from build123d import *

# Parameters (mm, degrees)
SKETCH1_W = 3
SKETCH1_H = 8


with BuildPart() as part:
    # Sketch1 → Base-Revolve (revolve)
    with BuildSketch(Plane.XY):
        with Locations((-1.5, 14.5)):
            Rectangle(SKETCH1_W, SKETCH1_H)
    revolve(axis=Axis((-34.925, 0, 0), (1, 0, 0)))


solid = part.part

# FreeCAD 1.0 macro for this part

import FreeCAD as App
import Part
import Sketcher

doc = App.newDocument("Part")
body = doc.addObject("PartDesign::Body", "Body")

# Sketch on XY plane
sketch1 = doc.addObject("Sketcher::SketchObject", "Sketch")
body.addObject(sketch1)
sketch1.AttachmentSupport = (doc.XY_Plane, [""])
sketch1.MapMode = "FlatFace"
sketch1.addGeometry(Part.LineSegment(App.Vector(-3, 18.5, 0), App.Vector(-3, 10.5, 0)), False)
sketch1.addGeometry(Part.LineSegment(App.Vector(-3, 10.5, 0), App.Vector(0, 10.5, 0)), False)
sketch1.addGeometry(Part.LineSegment(App.Vector(0, 10.5, 0), App.Vector(0, 18.5, 0)), False)
sketch1.addGeometry(Part.LineSegment(App.Vector(0, 18.5, 0), App.Vector(-3, 18.5, 0)), False)
sketch1.addConstraint(Sketcher.Constraint("Coincident", 0, 2, 1, 1))
sketch1.addConstraint(Sketcher.Constraint("Coincident", 1, 2, 2, 1))
sketch1.addConstraint(Sketcher.Constraint("Coincident", 2, 2, 3, 1))
sketch1.addConstraint(Sketcher.Constraint("Coincident", 3, 2, 0, 1))
sketch1.addConstraint(Sketcher.Constraint("Vertical", 0))
sketch1.addConstraint(Sketcher.Constraint("Horizontal", 1))
sketch1.addConstraint(Sketcher.Constraint("Vertical", 2))
sketch1.addConstraint(Sketcher.Constraint("Horizontal", 3))
sketch1.addConstraint(Sketcher.Constraint("PointOnObject", 1, 2, -2))
sketch1.addConstraint(Sketcher.Constraint("DistanceX", 1, 1, 1, 2, 3.0))
sketch1.addConstraint(Sketcher.Constraint("DistanceY", 0, 2, 0, 1, 8.0))
sketch1.addConstraint(Sketcher.Constraint("DistanceY", -1, 1, 0, 2, 10.5))
revolution = doc.addObject("PartDesign::Revolution", "Revolution")
body.addObject(revolution)
revolution.Profile = sketch1
revolution.ReferenceAxis = (sketch1, ["H_Axis"])
revolution.Angle = 360

doc.recompute()
